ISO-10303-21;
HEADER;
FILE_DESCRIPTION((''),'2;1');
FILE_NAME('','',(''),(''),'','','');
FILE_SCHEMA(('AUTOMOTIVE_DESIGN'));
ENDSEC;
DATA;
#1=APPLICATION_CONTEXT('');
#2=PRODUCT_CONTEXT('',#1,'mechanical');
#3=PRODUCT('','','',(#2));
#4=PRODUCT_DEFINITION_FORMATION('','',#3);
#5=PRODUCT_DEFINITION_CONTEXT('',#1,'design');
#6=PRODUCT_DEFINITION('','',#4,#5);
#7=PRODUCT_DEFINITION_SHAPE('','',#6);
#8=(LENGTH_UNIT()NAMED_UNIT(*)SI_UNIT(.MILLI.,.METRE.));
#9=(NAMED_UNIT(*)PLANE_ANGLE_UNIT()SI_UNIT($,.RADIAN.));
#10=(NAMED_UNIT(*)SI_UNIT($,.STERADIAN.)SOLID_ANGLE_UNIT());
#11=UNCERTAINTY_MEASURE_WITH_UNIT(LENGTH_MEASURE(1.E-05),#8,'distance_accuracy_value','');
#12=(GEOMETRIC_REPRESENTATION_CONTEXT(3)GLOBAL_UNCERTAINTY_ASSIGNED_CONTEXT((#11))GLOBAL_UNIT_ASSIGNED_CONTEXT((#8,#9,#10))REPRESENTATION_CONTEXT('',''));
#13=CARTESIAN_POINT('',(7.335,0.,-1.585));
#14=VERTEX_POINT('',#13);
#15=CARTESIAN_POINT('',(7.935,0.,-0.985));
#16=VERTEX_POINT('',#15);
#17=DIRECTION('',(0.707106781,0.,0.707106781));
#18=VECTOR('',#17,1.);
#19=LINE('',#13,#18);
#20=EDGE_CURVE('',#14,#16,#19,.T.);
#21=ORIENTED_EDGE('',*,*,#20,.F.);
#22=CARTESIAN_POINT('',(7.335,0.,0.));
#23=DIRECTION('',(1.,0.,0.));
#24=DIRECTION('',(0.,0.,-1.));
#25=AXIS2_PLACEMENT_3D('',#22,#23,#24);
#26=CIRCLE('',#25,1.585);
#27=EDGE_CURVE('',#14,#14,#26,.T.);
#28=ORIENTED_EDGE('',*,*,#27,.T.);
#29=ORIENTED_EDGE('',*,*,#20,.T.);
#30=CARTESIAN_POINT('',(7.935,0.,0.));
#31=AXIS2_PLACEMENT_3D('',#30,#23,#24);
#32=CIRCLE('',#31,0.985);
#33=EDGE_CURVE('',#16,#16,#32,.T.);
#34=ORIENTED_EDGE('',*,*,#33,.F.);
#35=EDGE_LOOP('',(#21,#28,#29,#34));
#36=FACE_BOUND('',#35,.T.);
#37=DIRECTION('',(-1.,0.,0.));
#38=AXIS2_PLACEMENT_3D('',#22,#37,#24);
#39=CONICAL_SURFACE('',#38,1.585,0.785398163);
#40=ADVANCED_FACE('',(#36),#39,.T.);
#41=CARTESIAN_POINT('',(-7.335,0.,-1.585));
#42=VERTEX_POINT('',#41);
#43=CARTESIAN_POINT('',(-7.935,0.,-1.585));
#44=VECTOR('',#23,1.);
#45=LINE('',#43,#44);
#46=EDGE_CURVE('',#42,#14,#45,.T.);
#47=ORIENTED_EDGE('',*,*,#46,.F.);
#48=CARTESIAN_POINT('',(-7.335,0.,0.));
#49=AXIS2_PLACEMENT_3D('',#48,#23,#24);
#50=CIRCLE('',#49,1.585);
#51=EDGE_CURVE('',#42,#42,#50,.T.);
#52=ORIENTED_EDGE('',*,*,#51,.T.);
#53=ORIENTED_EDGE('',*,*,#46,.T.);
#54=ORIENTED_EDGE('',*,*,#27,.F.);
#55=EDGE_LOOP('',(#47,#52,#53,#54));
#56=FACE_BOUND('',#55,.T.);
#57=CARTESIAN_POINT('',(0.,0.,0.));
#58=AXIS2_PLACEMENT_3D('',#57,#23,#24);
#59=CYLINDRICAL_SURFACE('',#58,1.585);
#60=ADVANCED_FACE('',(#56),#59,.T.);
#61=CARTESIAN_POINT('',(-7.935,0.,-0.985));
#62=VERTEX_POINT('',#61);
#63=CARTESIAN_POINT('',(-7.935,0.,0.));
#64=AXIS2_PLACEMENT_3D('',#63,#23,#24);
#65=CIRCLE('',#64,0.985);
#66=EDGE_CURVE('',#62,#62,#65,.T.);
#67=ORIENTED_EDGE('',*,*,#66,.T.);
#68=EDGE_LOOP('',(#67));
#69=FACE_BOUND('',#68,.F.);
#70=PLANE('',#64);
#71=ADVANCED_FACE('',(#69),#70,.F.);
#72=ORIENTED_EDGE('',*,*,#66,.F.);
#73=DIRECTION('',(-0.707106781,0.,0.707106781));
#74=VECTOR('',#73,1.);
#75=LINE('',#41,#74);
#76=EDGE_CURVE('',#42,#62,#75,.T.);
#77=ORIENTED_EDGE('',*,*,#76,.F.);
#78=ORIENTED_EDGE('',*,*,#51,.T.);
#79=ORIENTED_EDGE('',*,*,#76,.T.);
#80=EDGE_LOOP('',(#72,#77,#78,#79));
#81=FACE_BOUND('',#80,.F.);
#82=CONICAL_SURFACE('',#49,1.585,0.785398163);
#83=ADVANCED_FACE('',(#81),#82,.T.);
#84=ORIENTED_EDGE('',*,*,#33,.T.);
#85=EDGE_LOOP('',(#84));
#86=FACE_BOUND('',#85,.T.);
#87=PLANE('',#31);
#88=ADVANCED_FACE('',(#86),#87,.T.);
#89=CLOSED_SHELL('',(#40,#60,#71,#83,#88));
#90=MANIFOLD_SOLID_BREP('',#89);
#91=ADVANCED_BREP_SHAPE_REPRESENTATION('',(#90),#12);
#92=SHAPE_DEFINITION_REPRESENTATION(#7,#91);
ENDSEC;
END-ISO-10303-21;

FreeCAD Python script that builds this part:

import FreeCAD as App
import Part
import Sketcher

V = App.Vector
Q = App.Units.Quantity


def edges_at(feature, points):
    """Names of the edges that pass closest to the given points."""
    edges = feature.Shape.Edges
    near = lambda p: min(range(len(edges)), key=lambda i: edges[i].distToShape(Part.Vertex(*p))[0])
    return sorted({f"Edge{near(p) + 1}" for p in points})

doc = App.newDocument("Part")
params = doc.addObject("Spreadsheet::Sheet", "Params")
for row, (alias, value) in enumerate([
    ("sketch1_diameter", "3.17 mm"),
    ("pad1_length", "15.87 mm"),
    ("chamfer_size", "0.6 mm"),
], start=1):
    params.set(f"A{row}", alias)
    params.set(f"B{row}", "=" + value)
    params.setAlias(f"B{row}", alias)

body = doc.addObject("PartDesign::Body", "Body")

# Sketch on YZ plane
sketch1 = body.newObject("Sketcher::SketchObject", "Sketch")
sketch1.AttachmentSupport = (doc.getObject("YZ_Plane"), [""])
sketch1.MapMode = "FlatFace"
sketch1.addGeometry(Part.Circle(V(0, 0, 0), V(0, 0, 1), 1.585), False)
sketch1.addConstraint([
    Sketcher.Constraint("Coincident", 0, 3, -1, 1),
    Sketcher.Constraint("Diameter", 0, Q("3.17 mm")),
])
sketch1.setExpression("Constraints[1]", "Params.sketch1_diameter")
pad1 = body.newObject("PartDesign::Pad", "Pad")
pad1.Profile = sketch1
pad1.setExpression("Length", "Params.pad1_length")
pad1.Midplane = True
doc.recompute()

chamfer = body.newObject("PartDesign::Chamfer", "Chamfer")
chamfer.Base = (pad1, edges_at(pad1, [(-7.935, 0, 1.585), (7.935, 0, 1.585)]))
chamfer.setExpression("Size", "Params.chamfer_size")

doc.recompute()
